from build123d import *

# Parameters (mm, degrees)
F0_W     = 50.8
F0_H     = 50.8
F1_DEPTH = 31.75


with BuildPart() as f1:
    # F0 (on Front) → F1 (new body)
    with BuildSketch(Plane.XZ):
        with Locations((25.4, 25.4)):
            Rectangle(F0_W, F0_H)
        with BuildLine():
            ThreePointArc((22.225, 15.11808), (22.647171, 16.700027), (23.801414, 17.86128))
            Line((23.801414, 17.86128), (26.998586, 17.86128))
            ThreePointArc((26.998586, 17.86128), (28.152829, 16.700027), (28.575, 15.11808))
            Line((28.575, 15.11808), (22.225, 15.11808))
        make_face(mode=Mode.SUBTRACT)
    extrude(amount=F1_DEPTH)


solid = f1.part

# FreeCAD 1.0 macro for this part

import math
import FreeCAD as App
import Part
import Sketcher
from FreeCAD import Vector
Q = App.Units.Quantity

doc = App.newDocument("Part")
body = doc.addObject("PartDesign::Body", "Body")

# Sketch on XZ plane
sketch1 = body.newObject("Sketcher::SketchObject", "Sketch")
sketch1.AttachmentSupport = (doc.getObject("XZ_Plane"), [""])
sketch1.MapMode = "FlatFace"
sketch1.addGeometry([
    Part.LineSegment(Vector(0, 50.8, 0), Vector(0, 0, 0)),  # 0
    Part.LineSegment(Vector(0, 0, 0), Vector(50.8, 0, 0)),  # 1
    Part.LineSegment(Vector(50.8, 0, 0), Vector(50.8, 50.8, 0)),  # 2
    Part.LineSegment(Vector(50.8, 50.8, 0), Vector(0, 50.8, 0)),  # 3
    Part.LineSegment(Vector(28.575, 15.11808, 0), Vector(22.225, 15.11808, 0)),  # 4
    Part.ArcOfCircle(Part.Circle(Vector(25.4, 15.11808, 0), Vector(0, 0, 1), 3.175), math.radians(120.231279), math.radians(179.999992)),  # 5
    Part.LineSegment(Vector(23.801414, 17.86128, 0), Vector(26.998586, 17.86128, 0)),  # 6
    Part.ArcOfCircle(Part.Circle(Vector(25.4, 15.11808, 0), Vector(0, 0, 1), 3.175), math.radians(0.000008), math.radians(59.768721)),  # 7
], False)
sketch1.addConstraint([
    Sketcher.Constraint("Coincident", 0, 2, 1, 1),
    Sketcher.Constraint("Coincident", 1, 2, 2, 1),
    Sketcher.Constraint("Coincident", 2, 2, 3, 1),
    Sketcher.Constraint("Coincident", 3, 2, 0, 1),
    Sketcher.Constraint("Coincident", 4, 2, 5, 2),
    Sketcher.Constraint("Coincident", 5, 1, 6, 1),
    Sketcher.Constraint("Coincident", 6, 2, 7, 2),
    Sketcher.Constraint("Coincident", 7, 1, 4, 1),
    Sketcher.Constraint("Vertical", 0),
    Sketcher.Constraint("Horizontal", 1),
    Sketcher.Constraint("Vertical", 2),
    Sketcher.Constraint("Horizontal", 3),
    Sketcher.Constraint("Horizontal", 4),
    Sketcher.Constraint("Horizontal", 6),
    Sketcher.Constraint("Coincident", 0, 2, -1, 1),
    Sketcher.Constraint("Coincident", 7, 3, 5, 3),
    Sketcher.Constraint("Equal", 5, 7),
    Sketcher.Constraint("Horizontal", 7, 3, 4, 2),
    Sketcher.Constraint("Equal", 3, 0),
    Sketcher.Constraint("DistanceX", 1, 1, 1, 2, Q("2 in")),
    Sketcher.Constraint("DistanceX", -1, 1, 5, 3, Q("1 in")),
    Sketcher.Constraint("Radius", 5, Q("0.125 in")),
    Sketcher.Constraint("DistanceY", 4, 2, 5, 1, Q("0.108 in")),
    Sketcher.Constraint("DistanceY", -1, 1, 5, 3, Q("0.5952 in")),
])
pad1 = body.newObject("PartDesign::Pad", "Pad")
pad1.Profile = sketch1
pad1.Length = Q("1.25 in")

doc.recompute()
